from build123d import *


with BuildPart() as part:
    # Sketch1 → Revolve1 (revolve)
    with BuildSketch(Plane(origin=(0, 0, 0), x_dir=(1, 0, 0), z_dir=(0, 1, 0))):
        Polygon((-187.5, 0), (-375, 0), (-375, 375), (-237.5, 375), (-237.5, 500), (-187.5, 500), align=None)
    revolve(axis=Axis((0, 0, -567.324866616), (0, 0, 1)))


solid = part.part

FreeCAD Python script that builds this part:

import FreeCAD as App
import Part
import Sketcher
Q = App.Units.Quantity

doc = App.newDocument("Part")
body = doc.addObject("PartDesign::Body", "Body")

# Sketch on XZ plane
sketch1 = doc.addObject("Sketcher::SketchObject", "Sketch")
body.addObject(sketch1)
sketch1.AttachmentSupport = (doc.XZ_Plane, [""])
sketch1.MapMode = "FlatFace"
sketch1.addGeometry([
    Part.LineSegment(App.Vector(-375, 0, 0), App.Vector(-187.5, 0, 0)),  # 0
    Part.LineSegment(App.Vector(-187.5, 0, 0), App.Vector(-187.5, -500, 0)),  # 1
    Part.LineSegment(App.Vector(-187.5, -500, 0), App.Vector(-237.5, -500, 0)),  # 2
    Part.LineSegment(App.Vector(-237.5, -500, 0), App.Vector(-237.5, -375, 0)),  # 3
    Part.LineSegment(App.Vector(-237.5, -375, 0), App.Vector(-375, -375, 0)),  # 4
    Part.LineSegment(App.Vector(-375, -375, 0), App.Vector(-375, 0, 0)),  # 5
], False)
sketch1.addConstraint([
    Sketcher.Constraint("Coincident", 0, 2, 1, 1),
    Sketcher.Constraint("Coincident", 1, 2, 2, 1),
    Sketcher.Constraint("Coincident", 2, 2, 3, 1),
    Sketcher.Constraint("Coincident", 3, 2, 4, 1),
    Sketcher.Constraint("Coincident", 4, 2, 5, 1),
    Sketcher.Constraint("Coincident", 5, 2, 0, 1),
    Sketcher.Constraint("Horizontal", 0),
    Sketcher.Constraint("Vertical", 1),
    Sketcher.Constraint("Horizontal", 2),
    Sketcher.Constraint("Vertical", 3),
    Sketcher.Constraint("Horizontal", 4),
    Sketcher.Constraint("Vertical", 5),
    Sketcher.Constraint("PointOnObject", 0, 2, -1),
    Sketcher.Constraint("DistanceX", 2, 2, 2, 1, Q("50 mm")),
    Sketcher.Constraint("DistanceY", 1, 2, 1, 1, Q("500 mm")),
    Sketcher.Constraint("DistanceY", 3, 1, 3, 2, Q("125 mm")),
    Sketcher.Constraint("DistanceX", 0, 1, 0, 2, Q("187.5 mm")),
    Sketcher.Constraint("DistanceX", 4, 2, -1, 1, Q("375 mm")),
])
revolution = doc.addObject("PartDesign::Revolution", "Revolution")
body.addObject(revolution)
revolution.Profile = sketch1
revolution.ReferenceAxis = (sketch1, ["V_Axis"])
revolution.Angle = 360

doc.recompute()
